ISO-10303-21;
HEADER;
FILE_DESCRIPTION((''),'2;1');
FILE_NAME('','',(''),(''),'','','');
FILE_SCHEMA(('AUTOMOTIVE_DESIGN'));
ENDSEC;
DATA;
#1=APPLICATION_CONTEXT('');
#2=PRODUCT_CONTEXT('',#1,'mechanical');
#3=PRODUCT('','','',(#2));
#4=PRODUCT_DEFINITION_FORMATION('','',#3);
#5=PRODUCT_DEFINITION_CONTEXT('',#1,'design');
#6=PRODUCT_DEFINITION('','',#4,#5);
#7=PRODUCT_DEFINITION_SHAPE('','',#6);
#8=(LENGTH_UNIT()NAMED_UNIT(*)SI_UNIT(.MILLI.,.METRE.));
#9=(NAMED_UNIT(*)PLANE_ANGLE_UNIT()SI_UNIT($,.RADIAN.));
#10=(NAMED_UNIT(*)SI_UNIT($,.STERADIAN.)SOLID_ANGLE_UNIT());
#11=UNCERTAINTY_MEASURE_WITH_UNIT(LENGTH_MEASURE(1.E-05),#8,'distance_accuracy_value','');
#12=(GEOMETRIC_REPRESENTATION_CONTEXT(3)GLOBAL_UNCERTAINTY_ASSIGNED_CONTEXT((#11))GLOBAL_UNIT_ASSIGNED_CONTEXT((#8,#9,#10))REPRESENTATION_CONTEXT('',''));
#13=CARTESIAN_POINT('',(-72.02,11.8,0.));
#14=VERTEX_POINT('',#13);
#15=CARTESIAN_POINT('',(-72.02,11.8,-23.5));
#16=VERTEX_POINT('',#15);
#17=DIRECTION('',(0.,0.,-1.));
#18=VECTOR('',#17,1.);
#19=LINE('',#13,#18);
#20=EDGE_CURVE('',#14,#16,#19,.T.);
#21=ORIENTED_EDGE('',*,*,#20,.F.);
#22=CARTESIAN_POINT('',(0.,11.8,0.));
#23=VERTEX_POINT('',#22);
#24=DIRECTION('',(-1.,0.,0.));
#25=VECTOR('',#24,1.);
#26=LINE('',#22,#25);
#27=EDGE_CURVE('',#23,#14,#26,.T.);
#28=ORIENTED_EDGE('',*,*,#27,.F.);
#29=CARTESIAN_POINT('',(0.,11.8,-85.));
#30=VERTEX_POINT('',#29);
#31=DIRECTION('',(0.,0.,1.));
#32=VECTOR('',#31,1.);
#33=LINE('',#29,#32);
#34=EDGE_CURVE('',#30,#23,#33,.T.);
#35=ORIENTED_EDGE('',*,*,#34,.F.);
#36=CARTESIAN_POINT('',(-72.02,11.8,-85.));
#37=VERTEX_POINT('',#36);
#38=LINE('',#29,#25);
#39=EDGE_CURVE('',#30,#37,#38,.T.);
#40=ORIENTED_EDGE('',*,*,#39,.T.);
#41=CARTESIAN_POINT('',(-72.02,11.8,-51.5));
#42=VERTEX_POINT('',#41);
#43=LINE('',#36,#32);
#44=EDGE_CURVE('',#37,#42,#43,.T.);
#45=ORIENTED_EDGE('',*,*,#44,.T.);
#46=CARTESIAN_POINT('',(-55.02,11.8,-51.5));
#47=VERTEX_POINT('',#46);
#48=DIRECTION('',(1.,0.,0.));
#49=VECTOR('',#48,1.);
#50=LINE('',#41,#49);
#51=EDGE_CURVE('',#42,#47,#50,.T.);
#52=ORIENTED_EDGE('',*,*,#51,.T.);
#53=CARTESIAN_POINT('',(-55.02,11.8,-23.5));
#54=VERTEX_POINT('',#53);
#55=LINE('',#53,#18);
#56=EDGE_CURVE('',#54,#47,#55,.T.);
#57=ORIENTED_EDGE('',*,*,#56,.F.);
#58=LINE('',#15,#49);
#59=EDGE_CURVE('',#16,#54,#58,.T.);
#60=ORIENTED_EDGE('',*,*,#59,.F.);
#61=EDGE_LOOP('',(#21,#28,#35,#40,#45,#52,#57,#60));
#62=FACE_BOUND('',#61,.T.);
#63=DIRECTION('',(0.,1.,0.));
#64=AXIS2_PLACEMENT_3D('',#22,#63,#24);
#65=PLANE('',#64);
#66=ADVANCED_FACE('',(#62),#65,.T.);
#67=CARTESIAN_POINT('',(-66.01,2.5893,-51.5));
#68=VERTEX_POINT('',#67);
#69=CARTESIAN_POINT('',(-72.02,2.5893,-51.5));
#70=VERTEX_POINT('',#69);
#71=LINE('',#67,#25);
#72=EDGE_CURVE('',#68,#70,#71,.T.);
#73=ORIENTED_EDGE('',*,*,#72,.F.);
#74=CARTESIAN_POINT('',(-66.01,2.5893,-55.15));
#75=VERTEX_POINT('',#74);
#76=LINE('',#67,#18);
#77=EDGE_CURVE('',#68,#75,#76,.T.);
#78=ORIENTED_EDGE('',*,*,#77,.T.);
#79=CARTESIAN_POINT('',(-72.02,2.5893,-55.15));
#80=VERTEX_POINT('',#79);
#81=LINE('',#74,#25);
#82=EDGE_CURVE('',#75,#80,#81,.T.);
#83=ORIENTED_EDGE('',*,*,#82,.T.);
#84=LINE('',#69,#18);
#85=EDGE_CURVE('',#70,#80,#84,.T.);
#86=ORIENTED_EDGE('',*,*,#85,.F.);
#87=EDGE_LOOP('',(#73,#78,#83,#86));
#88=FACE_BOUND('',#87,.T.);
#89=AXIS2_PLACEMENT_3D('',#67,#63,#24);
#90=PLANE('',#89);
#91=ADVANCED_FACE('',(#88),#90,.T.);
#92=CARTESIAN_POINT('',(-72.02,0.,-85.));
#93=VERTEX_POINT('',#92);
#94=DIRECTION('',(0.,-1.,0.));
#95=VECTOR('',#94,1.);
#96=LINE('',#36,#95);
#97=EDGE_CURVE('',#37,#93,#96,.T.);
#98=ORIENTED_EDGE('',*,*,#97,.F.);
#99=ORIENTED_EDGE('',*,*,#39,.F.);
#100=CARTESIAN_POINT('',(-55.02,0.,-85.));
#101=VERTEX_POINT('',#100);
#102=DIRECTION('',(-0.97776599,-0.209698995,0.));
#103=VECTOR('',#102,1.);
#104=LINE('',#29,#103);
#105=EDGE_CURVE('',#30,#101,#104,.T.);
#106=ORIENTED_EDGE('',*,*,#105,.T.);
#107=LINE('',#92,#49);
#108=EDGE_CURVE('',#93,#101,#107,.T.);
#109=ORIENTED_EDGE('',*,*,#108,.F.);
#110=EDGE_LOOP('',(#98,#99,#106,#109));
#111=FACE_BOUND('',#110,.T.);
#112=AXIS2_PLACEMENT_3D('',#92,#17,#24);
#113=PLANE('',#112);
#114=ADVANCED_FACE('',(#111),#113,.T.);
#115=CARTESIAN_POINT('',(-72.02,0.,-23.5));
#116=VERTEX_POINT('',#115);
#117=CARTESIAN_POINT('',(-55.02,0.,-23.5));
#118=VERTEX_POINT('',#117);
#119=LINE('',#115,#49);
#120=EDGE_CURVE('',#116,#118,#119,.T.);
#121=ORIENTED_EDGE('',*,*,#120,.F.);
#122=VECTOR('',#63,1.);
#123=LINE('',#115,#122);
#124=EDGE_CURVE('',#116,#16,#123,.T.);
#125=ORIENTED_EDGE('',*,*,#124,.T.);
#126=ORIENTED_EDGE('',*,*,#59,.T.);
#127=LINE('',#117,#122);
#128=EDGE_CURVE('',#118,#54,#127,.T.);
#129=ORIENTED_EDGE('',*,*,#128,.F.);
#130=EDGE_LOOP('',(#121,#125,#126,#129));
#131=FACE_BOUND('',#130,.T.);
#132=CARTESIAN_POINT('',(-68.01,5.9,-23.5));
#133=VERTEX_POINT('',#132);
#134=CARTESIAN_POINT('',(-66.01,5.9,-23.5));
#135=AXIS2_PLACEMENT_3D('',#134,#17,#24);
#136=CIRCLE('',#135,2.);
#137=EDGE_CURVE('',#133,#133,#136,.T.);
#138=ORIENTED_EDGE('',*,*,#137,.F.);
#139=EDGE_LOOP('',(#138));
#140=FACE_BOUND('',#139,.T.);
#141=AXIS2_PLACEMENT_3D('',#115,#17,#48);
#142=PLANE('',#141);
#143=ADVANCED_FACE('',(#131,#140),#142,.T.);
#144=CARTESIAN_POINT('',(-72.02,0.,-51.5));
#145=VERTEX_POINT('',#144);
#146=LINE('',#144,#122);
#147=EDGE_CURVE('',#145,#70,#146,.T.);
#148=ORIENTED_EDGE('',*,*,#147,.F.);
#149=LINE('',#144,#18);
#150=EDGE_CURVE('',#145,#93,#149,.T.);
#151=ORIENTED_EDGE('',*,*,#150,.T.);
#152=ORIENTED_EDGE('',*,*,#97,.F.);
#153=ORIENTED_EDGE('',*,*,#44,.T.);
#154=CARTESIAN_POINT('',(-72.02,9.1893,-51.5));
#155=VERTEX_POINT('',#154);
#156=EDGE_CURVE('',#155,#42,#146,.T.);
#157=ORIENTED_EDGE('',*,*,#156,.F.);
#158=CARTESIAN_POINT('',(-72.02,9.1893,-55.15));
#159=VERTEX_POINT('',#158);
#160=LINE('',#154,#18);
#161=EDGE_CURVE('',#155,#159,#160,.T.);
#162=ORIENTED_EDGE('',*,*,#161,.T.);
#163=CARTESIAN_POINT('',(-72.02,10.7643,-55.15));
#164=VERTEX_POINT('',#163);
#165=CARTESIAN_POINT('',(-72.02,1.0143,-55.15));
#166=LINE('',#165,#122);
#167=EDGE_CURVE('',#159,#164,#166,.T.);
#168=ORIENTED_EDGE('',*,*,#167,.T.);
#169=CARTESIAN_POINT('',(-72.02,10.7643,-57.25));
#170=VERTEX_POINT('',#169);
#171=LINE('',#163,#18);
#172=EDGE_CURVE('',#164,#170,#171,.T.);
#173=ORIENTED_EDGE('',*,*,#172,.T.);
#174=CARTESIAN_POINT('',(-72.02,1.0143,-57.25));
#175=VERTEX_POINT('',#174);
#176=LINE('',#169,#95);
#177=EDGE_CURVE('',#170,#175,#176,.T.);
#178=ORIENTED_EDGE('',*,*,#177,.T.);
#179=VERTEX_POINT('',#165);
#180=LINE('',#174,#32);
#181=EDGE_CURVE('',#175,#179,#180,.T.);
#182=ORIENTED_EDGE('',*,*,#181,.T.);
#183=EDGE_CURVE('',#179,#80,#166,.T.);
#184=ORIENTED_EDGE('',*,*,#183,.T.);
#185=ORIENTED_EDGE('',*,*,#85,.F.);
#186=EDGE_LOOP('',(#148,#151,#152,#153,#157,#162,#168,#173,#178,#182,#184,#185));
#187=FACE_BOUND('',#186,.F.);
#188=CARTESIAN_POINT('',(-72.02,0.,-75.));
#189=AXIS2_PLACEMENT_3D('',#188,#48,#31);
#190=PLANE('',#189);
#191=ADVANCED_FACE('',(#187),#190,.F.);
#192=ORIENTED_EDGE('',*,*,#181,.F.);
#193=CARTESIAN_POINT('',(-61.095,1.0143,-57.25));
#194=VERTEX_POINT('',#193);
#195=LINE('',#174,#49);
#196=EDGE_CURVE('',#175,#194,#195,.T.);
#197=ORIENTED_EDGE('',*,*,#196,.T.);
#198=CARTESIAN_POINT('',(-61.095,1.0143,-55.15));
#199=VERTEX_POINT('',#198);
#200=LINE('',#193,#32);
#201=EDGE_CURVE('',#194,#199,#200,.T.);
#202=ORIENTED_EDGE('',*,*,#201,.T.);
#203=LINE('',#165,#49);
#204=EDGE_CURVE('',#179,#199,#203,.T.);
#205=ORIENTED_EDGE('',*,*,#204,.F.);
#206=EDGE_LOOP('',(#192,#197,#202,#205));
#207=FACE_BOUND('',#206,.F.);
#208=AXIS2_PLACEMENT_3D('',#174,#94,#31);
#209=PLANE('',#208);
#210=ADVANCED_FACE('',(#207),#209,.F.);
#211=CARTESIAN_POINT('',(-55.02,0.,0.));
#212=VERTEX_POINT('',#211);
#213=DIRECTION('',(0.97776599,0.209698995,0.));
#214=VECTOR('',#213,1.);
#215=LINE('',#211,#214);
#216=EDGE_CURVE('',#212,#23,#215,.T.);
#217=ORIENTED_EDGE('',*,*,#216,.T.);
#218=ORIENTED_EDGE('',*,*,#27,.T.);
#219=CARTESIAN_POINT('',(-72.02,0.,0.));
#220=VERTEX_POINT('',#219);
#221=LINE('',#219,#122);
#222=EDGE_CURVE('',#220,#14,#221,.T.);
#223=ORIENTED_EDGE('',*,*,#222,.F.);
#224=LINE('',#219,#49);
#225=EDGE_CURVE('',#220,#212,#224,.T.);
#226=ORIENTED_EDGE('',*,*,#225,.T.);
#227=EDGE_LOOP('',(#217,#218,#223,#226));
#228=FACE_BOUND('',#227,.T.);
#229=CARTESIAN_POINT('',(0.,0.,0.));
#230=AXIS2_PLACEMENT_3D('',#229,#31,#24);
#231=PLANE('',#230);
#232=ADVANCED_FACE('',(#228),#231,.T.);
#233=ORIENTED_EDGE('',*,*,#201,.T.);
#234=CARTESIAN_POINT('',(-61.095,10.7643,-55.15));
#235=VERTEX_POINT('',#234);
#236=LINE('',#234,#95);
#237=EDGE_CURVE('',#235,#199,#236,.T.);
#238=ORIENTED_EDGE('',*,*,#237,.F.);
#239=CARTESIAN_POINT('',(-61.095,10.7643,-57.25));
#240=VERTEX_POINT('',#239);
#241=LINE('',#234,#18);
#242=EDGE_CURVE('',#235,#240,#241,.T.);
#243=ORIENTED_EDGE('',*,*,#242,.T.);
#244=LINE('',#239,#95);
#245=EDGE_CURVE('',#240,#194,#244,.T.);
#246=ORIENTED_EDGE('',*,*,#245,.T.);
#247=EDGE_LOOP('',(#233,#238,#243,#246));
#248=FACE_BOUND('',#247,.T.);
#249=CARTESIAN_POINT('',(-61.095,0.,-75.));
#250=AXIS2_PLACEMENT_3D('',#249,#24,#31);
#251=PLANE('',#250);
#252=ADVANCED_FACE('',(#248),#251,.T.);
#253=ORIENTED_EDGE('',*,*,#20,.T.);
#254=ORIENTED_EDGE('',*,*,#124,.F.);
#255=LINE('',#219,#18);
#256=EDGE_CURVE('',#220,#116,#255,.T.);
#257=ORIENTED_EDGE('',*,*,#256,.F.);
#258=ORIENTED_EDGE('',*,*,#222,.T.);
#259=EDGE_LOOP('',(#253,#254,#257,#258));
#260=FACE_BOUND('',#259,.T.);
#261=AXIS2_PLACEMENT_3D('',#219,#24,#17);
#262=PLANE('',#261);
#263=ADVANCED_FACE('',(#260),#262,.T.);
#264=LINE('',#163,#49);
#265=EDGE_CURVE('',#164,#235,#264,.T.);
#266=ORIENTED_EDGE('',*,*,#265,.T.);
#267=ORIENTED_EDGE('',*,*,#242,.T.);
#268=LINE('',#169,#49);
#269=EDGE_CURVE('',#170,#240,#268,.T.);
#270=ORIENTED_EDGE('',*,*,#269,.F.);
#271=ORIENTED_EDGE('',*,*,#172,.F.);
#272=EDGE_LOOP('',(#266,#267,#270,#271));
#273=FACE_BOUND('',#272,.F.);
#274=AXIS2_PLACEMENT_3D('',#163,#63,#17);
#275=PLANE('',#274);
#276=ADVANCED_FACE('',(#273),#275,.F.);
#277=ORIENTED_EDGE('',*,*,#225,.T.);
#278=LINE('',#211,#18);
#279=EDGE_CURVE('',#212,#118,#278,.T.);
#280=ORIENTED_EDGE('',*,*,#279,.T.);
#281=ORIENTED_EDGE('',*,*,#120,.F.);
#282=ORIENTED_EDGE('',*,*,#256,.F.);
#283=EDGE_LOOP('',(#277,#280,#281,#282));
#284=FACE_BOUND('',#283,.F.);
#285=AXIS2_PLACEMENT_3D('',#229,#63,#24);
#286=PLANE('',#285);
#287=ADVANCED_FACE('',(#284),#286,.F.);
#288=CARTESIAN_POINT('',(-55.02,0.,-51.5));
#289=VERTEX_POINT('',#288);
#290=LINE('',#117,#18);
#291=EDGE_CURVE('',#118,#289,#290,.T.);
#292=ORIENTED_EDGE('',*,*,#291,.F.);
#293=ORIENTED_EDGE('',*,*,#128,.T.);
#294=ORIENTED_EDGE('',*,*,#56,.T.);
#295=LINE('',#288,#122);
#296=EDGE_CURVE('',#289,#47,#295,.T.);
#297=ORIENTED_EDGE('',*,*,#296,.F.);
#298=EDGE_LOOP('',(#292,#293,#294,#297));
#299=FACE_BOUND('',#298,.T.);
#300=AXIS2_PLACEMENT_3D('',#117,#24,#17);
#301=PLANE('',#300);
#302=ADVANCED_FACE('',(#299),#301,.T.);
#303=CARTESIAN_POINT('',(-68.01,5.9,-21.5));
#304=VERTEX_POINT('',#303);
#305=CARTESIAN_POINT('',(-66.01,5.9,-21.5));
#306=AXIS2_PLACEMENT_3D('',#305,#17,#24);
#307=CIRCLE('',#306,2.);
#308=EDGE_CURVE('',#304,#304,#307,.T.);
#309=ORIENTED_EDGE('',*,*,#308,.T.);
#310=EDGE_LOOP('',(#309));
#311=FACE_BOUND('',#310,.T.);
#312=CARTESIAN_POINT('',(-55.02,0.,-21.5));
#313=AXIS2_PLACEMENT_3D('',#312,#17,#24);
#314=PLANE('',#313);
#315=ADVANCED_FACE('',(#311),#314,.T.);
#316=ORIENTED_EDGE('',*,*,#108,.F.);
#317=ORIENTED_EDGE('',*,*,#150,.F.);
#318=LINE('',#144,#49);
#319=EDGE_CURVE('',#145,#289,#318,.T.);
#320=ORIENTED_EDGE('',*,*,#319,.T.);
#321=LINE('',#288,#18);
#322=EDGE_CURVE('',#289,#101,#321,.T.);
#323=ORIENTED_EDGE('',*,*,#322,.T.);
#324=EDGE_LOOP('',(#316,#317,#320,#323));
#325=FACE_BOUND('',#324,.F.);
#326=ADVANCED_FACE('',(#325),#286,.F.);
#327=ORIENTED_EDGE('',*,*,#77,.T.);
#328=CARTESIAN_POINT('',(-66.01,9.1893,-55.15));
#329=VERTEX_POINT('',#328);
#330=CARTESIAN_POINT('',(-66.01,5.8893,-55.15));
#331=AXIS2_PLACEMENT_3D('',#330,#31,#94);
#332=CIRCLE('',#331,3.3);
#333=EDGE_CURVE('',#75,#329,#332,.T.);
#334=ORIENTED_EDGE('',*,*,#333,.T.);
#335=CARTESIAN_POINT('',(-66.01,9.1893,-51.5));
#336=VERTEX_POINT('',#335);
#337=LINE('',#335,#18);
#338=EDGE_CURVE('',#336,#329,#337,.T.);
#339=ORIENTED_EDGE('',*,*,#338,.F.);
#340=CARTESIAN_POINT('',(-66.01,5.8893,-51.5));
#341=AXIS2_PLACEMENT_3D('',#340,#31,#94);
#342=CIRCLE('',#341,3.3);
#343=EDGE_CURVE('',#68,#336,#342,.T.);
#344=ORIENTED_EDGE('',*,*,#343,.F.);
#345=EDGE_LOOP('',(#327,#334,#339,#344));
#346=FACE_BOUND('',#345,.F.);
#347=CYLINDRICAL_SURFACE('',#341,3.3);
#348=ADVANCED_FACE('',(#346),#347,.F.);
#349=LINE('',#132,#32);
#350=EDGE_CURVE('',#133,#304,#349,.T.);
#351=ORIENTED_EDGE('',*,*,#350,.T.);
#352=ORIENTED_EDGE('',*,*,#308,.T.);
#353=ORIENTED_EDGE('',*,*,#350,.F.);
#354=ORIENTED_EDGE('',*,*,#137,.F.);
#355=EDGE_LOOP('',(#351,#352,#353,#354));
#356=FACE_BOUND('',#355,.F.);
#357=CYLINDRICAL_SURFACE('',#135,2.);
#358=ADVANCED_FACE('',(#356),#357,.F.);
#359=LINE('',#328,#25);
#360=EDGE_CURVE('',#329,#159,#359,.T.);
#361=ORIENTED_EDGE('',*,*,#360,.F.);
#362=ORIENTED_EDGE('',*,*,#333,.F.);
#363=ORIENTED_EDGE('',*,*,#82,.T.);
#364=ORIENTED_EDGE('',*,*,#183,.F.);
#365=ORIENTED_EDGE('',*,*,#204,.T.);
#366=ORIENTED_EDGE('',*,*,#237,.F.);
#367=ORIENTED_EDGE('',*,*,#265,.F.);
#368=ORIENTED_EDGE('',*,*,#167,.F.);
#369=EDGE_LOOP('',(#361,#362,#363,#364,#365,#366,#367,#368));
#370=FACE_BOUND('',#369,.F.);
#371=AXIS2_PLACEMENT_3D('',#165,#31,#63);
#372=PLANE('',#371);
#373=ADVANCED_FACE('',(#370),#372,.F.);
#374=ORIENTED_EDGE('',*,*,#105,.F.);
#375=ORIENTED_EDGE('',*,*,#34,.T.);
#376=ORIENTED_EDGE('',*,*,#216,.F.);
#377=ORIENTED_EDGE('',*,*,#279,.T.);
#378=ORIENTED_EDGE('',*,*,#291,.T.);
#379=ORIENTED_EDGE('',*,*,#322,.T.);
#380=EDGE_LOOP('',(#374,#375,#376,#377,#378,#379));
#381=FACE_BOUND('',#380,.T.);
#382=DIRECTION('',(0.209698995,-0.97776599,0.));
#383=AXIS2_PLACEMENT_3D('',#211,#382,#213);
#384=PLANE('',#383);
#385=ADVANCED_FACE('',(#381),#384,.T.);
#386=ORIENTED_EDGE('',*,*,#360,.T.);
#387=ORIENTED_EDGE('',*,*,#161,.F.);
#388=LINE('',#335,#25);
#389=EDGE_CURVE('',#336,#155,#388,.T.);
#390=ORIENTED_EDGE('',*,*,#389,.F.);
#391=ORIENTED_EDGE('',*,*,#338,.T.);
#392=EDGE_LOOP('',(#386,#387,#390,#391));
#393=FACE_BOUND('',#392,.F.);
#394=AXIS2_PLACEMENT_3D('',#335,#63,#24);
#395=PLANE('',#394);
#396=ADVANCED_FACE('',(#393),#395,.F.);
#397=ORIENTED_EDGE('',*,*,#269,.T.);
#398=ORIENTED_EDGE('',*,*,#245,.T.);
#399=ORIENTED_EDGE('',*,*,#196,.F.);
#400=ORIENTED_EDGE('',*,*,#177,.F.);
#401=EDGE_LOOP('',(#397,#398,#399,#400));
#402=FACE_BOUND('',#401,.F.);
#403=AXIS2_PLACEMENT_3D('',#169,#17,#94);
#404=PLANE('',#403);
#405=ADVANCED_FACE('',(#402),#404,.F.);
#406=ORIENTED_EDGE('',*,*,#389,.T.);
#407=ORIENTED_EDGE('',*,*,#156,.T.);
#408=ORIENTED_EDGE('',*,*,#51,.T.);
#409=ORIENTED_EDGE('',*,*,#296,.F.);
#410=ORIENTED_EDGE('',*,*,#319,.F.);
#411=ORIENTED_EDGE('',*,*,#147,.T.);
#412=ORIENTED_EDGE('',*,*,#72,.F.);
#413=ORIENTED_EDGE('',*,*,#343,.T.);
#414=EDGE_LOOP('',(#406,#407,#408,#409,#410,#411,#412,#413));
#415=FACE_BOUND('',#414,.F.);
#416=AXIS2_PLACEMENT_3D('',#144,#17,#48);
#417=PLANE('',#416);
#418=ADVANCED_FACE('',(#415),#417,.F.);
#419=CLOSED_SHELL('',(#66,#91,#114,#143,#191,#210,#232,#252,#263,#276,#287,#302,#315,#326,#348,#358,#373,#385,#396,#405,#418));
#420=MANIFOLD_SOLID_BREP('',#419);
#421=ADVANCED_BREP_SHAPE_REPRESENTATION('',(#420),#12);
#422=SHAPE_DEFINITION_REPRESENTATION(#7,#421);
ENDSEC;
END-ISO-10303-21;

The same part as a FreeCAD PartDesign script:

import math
import FreeCAD as App
import Part
import Sketcher


def add_polygon(sketch, points):
    """Adds a closed chain of lines whose ends are joined by coincident constraints."""
    first, n = sketch.GeometryCount, len(points)
    for a, b in zip(points, points[1:] + points[:1]):
        sketch.addGeometry(Part.LineSegment(App.Vector(*a, 0), App.Vector(*b, 0)), False)
    for i in range(n):
        sketch.addConstraint(Sketcher.Constraint("Coincident", first + i, 2, first + (i + 1) % n, 1))

doc = App.newDocument("Part")
body = doc.addObject("PartDesign::Body", "Body")

# Sketch on XZ plane
sketch1 = body.newObject("Sketcher::SketchObject", "Sketch")
sketch1.AttachmentSupport = (doc.getObject("XZ_Plane"), [""])
sketch1.MapMode = "FlatFace"
add_polygon(sketch1, [(-72, 0), (0, 0), (0, -75), (-72, -75), (-72, -52), (-55, -52), (-55, -24), (-72, -24)])  # lines 0-7
sketch1.addConstraint([
    Sketcher.Constraint("Horizontal", 0),
    Sketcher.Constraint("Vertical", 1),
    Sketcher.Constraint("Horizontal", 2),
    Sketcher.Constraint("Vertical", 3),
    Sketcher.Constraint("Horizontal", 4),
    Sketcher.Constraint("Vertical", 5),
    Sketcher.Constraint("Horizontal", 6),
    Sketcher.Constraint("Vertical", 7),
    Sketcher.Constraint("Coincident", 0, 2, -1, 1),
    Sketcher.Constraint("Vertical", 3, 2, 6, 2),
    Sketcher.Constraint("Equal", 3, 7),
    Sketcher.Constraint("DistanceX", 4, 1, 4, 2, 17.0),
    Sketcher.Constraint("DistanceY", 5, 1, 5, 2, 28.0),
    Sketcher.Constraint("DistanceY", 3, 1, 3, 2, 23.5),
    Sketcher.Constraint("DistanceX", 0, 1, 0, 2, 72.02),
])
pad1 = body.newObject("PartDesign::Pad", "Pad")
pad1.Profile = sketch1
pad1.Length = 11.8
pad1.Reversed = True

# Sketch on XY plane
sketch2 = body.newObject("Sketcher::SketchObject", "Sketch001")
sketch2.AttachmentSupport = (doc.getObject("XY_Plane"), [""])
sketch2.MapMode = "FlatFace"
sketch2.AttachmentOffset = App.Placement(App.Vector(0, 0, -23.5), App.Rotation())
sketch2.addGeometry(Part.Circle(App.Vector(-66, 5.9, 0), App.Vector(0, 0, 1), 2), False)
sketch2.addConstraint([
    Sketcher.Constraint("Diameter", 0, 4.0),
    Sketcher.Constraint("DistanceY", -1, 1, 0, 3, 5.9),
    Sketcher.Constraint("DistanceX", 0, 3, -1, 1, 66.01),
])
pocket1 = body.newObject("PartDesign::Pocket", "Pocket")
pocket1.Profile = sketch2
pocket1.Length = 2
pocket1.Reversed = True

# Sketch on XY plane
sketch3 = body.newObject("Sketcher::SketchObject", "Sketch002")
sketch3.AttachmentSupport = (doc.getObject("XY_Plane"), [""])
sketch3.MapMode = "FlatFace"
sketch3.AttachmentOffset = App.Placement(App.Vector(0, 0, -51.5), App.Rotation())
sketch3.addGeometry([
    Part.LineSegment(App.Vector(-72, 2.6, 0), App.Vector(-66, 2.6, 0)),
    Part.ArcOfCircle(Part.Circle(App.Vector(-66, 5.9, 0), App.Vector(0, 0, 1), 3.3), math.radians(-90), math.radians(90)),
    Part.LineSegment(App.Vector(-66, 9.2, 0), App.Vector(-72, 9.2, 0)),
    Part.LineSegment(App.Vector(-72, 9.2, 0), App.Vector(-72, 2.6, 0)),
], False)
sketch3.addConstraint([
    Sketcher.Constraint("Tangent", 0, 2, 1, 1),
    Sketcher.Constraint("Tangent", 1, 2, 2, 1),
    Sketcher.Constraint("Coincident", 2, 2, 3, 1),
    Sketcher.Constraint("Coincident", 3, 2, 0, 1),
    Sketcher.Constraint("Horizontal", 0),
    Sketcher.Constraint("Horizontal", 2),
    Sketcher.Constraint("Vertical", 3),
    Sketcher.Constraint("Radius", 1, 3.3),
    Sketcher.Constraint("DistanceX", 0, 1, 0, 2, 6.01),
    Sketcher.Constraint("DistanceX", 1, 3, -1, 1, 66.01),
    Sketcher.Constraint("DistanceY", -1, 1, 1, 3, 5.8893),
])
pocket2 = body.newObject("PartDesign::Pocket", "Pocket001")
pocket2.Profile = sketch3
pocket2.Length = 3.65

# Sketch on YZ plane
sketch4 = body.newObject("Sketcher::SketchObject", "Sketch003")
sketch4.AttachmentSupport = (doc.getObject("YZ_Plane"), [""])
sketch4.MapMode = "FlatFace"
sketch4.AttachmentOffset = App.Placement(App.Vector(0, 0, -72.02), App.Rotation())
add_polygon(sketch4, [(1, -55.1), (10.8, -55.1), (10.8, -57.2), (1, -57.2)])  # lines 0-3
sketch4.addConstraint([
    Sketcher.Constraint("Horizontal", 0),
    Sketcher.Constraint("Vertical", 1),
    Sketcher.Constraint("Horizontal", 2),
    Sketcher.Constraint("Vertical", 3),
    Sketcher.Constraint("DistanceY", 1, 2, 1, 1, 2.1),
    Sketcher.Constraint("DistanceX", 0, 1, 0, 2, 9.75),
    Sketcher.Constraint("DistanceY", 0, 2, -1, 1, 55.15),
    Sketcher.Constraint("DistanceX", -1, 1, 0, 2, 10.7643),
])
pocket3 = body.newObject("PartDesign::Pocket", "Pocket002")
pocket3.Profile = sketch4
pocket3.Length = 10.925
pocket3.Reversed = True

# Sketch on XY plane
sketch5 = body.newObject("Sketcher::SketchObject", "Sketch004")
sketch5.AttachmentSupport = (doc.getObject("XY_Plane"), [""])
sketch5.MapMode = "FlatFace"
add_polygon(sketch5, [(0, 12), (-55, 0), (0, 0)])  # lines 0-2
sketch5.addConstraint([
    Sketcher.Constraint("Horizontal", 1),
    Sketcher.Constraint("Vertical", 2),
    Sketcher.Constraint("Coincident", 1, 2, -1, 1),
    Sketcher.Constraint("DistanceY", 2, 1, 2, 2, 11.8),
    Sketcher.Constraint("DistanceX", 1, 1, 1, 2, 55.02),
])
pocket4 = body.newObject("PartDesign::Pocket", "Pocket003")
pocket4.Profile = sketch5
pocket4.Length = 88.5

# Sketch on XY plane
sketch6 = body.newObject("Sketcher::SketchObject", "Sketch005")
sketch6.AttachmentSupport = (doc.getObject("XY_Plane"), [""])
sketch6.MapMode = "FlatFace"
sketch6.AttachmentOffset = App.Placement(App.Vector(0, 0, -75), App.Rotation())
add_polygon(sketch6, [(0, 12), (-55, 0), (-72, 0), (-72, 12)])  # lines 0-3
sketch6.addConstraint([
    Sketcher.Constraint("Horizontal", 1),
    Sketcher.Constraint("Vertical", 2),
    Sketcher.Constraint("Horizontal", 3),
    Sketcher.Constraint("PointOnObject", 0, 2, -1),
    Sketcher.Constraint("PointOnObject", 3, 2, -2),
    Sketcher.Constraint("DistanceX", 1, 2, 1, 1, 17.0),
    Sketcher.Constraint("DistanceY", 2, 1, 2, 2, 11.8),
    Sketcher.Constraint("DistanceX", 3, 1, 3, 2, 72.02),
])
pad2 = body.newObject("PartDesign::Pad", "Pad001")
pad2.Profile = sketch6
pad2.Length = 10
pad2.Reversed = True

doc.recompute()
